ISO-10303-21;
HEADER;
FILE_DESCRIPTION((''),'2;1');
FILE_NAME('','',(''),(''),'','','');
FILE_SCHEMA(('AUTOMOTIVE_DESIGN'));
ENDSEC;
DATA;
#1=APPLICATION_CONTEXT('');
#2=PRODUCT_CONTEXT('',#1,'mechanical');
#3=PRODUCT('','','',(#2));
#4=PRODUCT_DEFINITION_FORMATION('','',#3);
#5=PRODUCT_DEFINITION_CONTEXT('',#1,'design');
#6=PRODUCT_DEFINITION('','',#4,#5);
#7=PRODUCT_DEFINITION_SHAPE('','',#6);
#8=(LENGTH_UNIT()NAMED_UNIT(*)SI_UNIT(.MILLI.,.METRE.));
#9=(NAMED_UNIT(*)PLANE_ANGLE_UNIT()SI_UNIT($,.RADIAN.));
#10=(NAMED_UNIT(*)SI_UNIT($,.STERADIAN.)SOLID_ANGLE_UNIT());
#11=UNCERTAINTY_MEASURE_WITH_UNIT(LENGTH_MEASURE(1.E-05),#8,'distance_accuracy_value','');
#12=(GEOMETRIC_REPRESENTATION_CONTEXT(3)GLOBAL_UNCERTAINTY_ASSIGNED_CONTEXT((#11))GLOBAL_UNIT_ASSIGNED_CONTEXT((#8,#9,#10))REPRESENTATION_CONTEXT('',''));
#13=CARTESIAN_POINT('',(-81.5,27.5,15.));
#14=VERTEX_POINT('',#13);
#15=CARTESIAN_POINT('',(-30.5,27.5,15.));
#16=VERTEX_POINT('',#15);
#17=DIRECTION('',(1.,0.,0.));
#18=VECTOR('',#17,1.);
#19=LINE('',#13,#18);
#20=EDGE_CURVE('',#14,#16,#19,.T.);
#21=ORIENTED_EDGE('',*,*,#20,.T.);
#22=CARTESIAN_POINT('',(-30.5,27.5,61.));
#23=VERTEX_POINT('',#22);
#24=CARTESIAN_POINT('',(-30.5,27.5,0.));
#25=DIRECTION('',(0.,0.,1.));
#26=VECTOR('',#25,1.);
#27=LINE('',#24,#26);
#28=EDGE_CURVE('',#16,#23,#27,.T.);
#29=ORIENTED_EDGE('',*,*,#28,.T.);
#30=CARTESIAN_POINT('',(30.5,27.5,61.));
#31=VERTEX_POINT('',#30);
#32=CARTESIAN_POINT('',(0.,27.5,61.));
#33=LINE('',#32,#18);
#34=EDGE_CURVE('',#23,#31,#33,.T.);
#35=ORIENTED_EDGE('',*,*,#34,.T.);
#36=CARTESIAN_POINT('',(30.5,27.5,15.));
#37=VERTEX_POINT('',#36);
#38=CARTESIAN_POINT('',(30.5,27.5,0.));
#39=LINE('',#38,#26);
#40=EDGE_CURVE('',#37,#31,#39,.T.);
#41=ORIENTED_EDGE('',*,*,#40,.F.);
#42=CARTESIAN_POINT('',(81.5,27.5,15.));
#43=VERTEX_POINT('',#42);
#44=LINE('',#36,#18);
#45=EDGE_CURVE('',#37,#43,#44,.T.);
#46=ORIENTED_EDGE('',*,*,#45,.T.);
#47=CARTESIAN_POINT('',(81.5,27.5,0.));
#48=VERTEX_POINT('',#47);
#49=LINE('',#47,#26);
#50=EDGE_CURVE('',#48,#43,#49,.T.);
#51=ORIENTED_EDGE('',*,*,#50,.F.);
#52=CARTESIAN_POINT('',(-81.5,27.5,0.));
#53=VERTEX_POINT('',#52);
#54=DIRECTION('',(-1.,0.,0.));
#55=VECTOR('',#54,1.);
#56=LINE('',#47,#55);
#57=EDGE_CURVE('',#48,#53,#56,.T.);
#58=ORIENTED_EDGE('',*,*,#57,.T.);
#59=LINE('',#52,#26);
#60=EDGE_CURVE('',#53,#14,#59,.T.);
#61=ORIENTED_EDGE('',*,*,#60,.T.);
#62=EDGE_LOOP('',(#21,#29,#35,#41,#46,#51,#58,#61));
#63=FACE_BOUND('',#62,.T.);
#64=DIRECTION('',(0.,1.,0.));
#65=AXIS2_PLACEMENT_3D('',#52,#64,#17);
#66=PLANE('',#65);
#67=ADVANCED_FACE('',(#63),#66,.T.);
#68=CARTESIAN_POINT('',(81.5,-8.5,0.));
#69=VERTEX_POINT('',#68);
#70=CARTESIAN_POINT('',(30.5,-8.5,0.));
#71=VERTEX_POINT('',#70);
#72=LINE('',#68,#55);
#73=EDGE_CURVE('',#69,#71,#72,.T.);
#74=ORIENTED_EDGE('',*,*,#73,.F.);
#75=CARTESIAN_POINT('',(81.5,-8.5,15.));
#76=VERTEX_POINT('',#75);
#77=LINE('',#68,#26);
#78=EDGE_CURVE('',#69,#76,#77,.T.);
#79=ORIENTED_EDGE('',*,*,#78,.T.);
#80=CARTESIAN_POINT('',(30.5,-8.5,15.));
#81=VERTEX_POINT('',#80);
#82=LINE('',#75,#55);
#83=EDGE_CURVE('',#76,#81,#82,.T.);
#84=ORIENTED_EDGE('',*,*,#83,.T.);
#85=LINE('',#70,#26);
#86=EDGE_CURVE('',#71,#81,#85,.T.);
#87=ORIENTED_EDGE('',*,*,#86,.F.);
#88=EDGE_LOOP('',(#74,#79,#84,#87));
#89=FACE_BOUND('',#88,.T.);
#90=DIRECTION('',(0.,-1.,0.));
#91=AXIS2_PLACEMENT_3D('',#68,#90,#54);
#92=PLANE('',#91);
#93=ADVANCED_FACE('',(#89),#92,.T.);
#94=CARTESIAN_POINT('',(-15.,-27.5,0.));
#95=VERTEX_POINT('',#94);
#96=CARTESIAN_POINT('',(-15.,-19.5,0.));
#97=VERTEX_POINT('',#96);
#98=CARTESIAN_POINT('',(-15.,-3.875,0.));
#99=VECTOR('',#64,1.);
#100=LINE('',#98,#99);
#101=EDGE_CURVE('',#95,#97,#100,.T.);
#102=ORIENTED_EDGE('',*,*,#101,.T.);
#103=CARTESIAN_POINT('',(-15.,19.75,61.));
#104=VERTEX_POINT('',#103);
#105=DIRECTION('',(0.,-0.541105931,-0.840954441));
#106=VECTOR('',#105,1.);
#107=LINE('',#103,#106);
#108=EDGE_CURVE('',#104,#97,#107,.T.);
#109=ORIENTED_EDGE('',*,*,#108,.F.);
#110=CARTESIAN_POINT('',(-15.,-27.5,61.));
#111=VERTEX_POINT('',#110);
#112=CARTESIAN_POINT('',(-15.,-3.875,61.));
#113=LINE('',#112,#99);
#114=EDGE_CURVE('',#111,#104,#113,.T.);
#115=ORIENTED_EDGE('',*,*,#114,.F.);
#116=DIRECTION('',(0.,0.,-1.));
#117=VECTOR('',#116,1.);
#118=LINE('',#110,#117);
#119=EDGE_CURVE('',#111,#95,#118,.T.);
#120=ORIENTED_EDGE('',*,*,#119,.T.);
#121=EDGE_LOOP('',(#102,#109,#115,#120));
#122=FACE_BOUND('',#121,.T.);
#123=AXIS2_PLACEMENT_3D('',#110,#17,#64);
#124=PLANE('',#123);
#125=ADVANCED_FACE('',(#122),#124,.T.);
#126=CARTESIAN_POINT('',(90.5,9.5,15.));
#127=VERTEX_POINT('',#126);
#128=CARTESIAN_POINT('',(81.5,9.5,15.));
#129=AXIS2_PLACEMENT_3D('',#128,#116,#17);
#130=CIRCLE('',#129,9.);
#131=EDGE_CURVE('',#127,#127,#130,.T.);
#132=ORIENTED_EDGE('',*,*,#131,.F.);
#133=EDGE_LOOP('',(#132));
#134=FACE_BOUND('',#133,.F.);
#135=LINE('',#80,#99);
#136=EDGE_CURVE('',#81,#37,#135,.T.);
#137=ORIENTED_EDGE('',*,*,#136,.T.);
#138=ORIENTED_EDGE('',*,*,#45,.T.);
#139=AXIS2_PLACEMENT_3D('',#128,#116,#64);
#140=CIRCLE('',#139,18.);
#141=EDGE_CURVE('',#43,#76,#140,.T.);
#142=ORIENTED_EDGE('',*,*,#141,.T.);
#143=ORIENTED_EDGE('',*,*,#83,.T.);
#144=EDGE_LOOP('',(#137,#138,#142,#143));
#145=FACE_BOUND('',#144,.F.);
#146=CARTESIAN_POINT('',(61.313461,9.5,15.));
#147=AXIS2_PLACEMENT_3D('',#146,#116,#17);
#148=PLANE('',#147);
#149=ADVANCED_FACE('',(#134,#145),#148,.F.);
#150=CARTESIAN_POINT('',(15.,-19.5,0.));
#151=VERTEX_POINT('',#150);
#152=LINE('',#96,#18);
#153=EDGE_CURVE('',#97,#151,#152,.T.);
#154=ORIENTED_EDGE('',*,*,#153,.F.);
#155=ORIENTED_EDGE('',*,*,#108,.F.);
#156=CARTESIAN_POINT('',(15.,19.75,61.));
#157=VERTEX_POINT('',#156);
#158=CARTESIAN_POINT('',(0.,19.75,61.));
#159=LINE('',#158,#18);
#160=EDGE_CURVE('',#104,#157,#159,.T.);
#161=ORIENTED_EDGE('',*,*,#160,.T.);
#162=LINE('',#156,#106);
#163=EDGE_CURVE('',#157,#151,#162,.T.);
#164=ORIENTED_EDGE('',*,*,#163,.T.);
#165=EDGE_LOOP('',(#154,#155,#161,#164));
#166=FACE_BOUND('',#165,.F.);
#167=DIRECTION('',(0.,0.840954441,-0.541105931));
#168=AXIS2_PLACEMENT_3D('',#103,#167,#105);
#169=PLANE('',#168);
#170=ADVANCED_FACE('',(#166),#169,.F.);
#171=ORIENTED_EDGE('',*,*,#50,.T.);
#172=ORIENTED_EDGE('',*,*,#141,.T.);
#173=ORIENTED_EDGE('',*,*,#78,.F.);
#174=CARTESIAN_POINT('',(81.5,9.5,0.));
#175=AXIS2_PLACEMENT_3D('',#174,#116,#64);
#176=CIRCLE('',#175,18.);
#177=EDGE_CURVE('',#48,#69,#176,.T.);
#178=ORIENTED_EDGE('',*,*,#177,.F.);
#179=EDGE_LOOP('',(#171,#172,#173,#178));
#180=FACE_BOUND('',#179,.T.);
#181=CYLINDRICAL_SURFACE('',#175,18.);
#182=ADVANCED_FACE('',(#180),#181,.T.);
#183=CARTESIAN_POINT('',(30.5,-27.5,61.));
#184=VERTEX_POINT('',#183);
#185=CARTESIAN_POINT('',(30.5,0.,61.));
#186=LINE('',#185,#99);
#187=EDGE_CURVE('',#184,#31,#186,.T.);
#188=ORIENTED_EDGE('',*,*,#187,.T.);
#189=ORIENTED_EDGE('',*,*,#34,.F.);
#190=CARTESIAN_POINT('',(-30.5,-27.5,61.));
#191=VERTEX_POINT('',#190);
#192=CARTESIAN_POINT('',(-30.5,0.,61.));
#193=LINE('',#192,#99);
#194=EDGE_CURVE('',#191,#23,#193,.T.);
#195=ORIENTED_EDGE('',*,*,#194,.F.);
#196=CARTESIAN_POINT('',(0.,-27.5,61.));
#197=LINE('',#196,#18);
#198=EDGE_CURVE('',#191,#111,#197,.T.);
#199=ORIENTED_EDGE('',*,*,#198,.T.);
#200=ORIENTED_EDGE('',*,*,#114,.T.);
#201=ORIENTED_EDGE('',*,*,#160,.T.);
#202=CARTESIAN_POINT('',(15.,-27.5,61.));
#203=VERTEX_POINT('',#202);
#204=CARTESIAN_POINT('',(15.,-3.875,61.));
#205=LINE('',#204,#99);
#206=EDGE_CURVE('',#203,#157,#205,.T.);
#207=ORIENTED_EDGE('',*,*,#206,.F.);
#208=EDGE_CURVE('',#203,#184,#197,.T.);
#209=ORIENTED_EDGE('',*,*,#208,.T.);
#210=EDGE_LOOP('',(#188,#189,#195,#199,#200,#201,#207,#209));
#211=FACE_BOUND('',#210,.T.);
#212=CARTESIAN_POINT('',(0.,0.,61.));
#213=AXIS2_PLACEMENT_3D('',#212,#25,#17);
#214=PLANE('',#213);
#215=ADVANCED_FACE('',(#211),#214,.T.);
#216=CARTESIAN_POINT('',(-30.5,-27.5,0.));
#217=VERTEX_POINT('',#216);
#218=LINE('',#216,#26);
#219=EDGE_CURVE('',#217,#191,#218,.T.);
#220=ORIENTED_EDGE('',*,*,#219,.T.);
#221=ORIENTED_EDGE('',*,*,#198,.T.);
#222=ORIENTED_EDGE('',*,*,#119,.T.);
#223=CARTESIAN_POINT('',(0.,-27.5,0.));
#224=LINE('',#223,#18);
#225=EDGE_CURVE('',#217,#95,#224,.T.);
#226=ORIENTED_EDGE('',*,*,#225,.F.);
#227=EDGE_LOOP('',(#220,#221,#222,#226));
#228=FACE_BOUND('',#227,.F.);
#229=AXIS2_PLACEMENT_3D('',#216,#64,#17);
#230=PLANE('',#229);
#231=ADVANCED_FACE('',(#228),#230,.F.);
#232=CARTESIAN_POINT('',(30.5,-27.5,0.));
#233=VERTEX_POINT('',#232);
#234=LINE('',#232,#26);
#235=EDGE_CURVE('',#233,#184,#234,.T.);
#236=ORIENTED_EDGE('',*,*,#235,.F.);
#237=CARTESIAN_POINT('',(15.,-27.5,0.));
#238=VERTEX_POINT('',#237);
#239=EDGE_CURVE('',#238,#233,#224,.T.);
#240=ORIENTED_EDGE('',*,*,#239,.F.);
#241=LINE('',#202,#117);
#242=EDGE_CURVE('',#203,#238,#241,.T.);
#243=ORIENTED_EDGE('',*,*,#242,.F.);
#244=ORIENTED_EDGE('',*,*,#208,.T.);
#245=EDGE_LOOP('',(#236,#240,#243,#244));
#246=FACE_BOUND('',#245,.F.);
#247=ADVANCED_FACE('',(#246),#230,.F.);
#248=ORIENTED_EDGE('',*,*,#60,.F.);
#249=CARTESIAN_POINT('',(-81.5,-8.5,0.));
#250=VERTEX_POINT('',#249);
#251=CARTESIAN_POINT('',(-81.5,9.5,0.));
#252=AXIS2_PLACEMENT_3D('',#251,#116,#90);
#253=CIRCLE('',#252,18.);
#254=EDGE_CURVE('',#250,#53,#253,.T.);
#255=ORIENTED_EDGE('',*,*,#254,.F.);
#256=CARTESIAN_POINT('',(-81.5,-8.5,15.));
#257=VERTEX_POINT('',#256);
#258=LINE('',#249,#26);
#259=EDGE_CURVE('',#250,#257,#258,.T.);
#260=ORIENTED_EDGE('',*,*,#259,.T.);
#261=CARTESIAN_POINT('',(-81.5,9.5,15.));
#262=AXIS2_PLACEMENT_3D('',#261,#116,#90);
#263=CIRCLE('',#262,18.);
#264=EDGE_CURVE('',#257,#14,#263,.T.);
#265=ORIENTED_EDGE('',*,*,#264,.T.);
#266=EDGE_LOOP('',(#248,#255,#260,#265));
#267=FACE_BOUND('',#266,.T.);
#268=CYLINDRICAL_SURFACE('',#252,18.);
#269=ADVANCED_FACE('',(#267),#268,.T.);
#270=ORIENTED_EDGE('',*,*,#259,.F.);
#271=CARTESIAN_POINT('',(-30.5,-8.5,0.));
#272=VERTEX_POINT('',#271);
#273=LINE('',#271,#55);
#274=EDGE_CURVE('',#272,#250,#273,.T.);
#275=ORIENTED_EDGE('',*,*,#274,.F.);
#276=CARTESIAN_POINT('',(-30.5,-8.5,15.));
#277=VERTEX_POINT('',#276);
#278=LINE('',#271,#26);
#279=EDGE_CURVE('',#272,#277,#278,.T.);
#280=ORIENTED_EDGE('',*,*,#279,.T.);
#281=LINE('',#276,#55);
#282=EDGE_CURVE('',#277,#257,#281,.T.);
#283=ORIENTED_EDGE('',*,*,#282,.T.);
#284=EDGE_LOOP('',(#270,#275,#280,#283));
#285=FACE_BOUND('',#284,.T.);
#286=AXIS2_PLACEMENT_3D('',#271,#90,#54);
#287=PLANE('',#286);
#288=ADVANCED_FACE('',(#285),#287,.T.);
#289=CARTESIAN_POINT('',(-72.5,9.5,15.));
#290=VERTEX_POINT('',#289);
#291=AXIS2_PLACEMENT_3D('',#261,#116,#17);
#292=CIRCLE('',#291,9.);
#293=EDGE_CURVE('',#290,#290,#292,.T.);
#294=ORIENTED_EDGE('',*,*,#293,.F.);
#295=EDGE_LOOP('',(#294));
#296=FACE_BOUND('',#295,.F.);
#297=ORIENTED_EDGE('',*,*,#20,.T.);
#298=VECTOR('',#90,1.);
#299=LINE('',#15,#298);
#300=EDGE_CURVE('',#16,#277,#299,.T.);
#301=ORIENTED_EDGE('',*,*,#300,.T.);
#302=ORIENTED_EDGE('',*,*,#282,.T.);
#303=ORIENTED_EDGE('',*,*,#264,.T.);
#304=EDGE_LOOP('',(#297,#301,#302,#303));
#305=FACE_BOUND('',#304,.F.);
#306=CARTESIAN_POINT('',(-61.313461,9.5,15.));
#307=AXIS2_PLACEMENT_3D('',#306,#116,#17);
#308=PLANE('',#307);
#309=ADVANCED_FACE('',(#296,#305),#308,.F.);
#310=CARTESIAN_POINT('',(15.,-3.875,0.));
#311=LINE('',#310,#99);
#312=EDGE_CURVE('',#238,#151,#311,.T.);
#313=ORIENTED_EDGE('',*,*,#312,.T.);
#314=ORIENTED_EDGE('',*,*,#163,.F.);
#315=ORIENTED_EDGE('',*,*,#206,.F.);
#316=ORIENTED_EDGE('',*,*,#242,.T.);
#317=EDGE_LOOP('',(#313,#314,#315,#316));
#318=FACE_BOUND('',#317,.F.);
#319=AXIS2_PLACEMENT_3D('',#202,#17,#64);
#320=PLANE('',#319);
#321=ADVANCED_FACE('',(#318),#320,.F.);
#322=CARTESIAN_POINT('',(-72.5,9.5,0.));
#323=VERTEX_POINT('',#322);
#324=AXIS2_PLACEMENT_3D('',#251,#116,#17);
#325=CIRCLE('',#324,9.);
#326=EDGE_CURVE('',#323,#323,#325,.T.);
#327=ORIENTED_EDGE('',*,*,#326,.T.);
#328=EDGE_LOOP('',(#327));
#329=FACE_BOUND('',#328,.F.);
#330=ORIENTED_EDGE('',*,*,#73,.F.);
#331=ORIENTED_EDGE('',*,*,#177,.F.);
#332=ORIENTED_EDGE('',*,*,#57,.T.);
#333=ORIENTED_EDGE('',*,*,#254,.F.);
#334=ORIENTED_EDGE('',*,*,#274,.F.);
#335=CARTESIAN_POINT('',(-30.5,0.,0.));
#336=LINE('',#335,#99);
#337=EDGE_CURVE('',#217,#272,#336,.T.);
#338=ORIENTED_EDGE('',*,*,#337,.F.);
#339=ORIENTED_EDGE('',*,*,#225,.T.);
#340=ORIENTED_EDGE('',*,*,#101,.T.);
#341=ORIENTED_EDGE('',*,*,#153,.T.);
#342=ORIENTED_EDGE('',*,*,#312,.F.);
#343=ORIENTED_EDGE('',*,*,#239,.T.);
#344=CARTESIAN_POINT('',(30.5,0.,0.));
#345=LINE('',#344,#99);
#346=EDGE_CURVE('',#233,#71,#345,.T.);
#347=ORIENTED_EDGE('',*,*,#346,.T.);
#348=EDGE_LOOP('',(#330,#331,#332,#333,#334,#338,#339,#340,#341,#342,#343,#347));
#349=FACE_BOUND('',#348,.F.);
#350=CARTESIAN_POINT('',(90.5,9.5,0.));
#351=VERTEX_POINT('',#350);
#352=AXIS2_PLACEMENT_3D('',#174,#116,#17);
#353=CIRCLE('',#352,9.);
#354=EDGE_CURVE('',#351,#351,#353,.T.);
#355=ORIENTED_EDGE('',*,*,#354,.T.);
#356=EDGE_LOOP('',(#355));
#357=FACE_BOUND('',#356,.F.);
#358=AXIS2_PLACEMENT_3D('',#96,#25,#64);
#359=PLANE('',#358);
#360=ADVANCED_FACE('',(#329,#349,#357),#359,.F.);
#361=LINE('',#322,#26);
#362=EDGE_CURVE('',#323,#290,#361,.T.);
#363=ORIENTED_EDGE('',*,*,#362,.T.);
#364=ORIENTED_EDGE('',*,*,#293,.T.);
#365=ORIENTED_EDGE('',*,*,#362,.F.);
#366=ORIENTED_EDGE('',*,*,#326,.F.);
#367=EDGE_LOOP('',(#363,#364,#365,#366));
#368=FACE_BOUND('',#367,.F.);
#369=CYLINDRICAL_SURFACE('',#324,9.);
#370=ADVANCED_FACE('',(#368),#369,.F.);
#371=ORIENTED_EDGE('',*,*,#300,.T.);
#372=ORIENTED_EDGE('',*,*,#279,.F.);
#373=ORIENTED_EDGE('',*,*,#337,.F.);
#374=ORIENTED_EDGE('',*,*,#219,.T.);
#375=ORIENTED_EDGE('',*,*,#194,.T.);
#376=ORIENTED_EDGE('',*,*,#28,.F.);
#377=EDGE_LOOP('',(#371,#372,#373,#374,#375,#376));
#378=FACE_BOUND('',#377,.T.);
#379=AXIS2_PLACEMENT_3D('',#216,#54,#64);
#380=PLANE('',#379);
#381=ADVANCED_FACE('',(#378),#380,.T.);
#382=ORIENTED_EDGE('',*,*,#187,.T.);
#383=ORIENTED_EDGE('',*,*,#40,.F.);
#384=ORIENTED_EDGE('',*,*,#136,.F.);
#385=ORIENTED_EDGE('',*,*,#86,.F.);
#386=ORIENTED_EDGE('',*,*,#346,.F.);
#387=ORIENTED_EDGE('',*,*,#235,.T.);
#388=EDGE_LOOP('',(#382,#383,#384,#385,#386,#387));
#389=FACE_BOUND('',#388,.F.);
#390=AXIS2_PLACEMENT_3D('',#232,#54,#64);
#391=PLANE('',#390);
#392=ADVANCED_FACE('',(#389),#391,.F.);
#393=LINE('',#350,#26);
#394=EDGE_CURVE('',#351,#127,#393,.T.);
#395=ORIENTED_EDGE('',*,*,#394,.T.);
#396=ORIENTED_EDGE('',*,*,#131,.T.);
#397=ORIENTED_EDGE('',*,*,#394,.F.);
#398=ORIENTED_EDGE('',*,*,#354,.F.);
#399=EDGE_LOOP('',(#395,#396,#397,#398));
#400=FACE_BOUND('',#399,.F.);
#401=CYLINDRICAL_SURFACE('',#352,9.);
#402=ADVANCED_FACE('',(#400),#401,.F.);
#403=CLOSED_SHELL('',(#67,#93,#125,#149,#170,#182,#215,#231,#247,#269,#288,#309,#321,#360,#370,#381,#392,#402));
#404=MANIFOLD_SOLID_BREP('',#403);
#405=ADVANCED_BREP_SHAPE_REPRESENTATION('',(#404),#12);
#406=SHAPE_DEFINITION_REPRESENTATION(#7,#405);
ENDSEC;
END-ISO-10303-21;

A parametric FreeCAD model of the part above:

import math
import FreeCAD as App
import Part
import Sketcher
from FreeCAD import Vector

doc = App.newDocument("Part")
body = doc.addObject("PartDesign::Body", "Body")

sketch1 = body.newObject("Sketcher::SketchObject", "Sketch")
sketch1.AttachmentSupport = (doc.getObject("XY_Plane"), [""])
sketch1.MapMode = "FlatFace"
sketch1.addGeometry(Part.LineSegment(Vector(-30, 28, 0), Vector(-30, -28, 0)), False)
sketch1.addGeometry(Part.LineSegment(Vector(-30, -28, 0), Vector(30, -28, 0)), False)
sketch1.addGeometry(Part.LineSegment(Vector(30, -28, 0), Vector(30, 28, 0)), False)
sketch1.addGeometry(Part.LineSegment(Vector(30, 28, 0), Vector(-30, 28, 0)), False)
sketch1.addConstraint(Sketcher.Constraint("Coincident", 0, 2, 1, 1))
sketch1.addConstraint(Sketcher.Constraint("Coincident", 1, 2, 2, 1))
sketch1.addConstraint(Sketcher.Constraint("Coincident", 2, 2, 3, 1))
sketch1.addConstraint(Sketcher.Constraint("Coincident", 3, 2, 0, 1))
sketch1.addConstraint(Sketcher.Constraint("Vertical", 0))
sketch1.addConstraint(Sketcher.Constraint("Horizontal", 1))
sketch1.addConstraint(Sketcher.Constraint("Vertical", 2))
sketch1.addConstraint(Sketcher.Constraint("Horizontal", 3))
sketch1.addConstraint(Sketcher.Constraint("Symmetric", 0, 2, 2, 2, -1, 1))
sketch1.addConstraint(Sketcher.Constraint("DistanceX", 1, 1, 1, 2, 61.0))
sketch1.addConstraint(Sketcher.Constraint("DistanceY", 0, 2, 0, 1, 55.0))
pad1 = body.newObject("PartDesign::Pad", "Pad")
pad1.Profile = sketch1
pad1.Length = 61

sketch2 = body.newObject("Sketcher::SketchObject", "Sketch001")
sketch2.AttachmentSupport = (doc.getObject("XY_Plane"), [""])
sketch2.MapMode = "FlatFace"
sketch2.AttachmentOffset = App.Placement(Vector(0, 0, 61), App.Rotation())
sketch2.addGeometry(Part.LineSegment(Vector(-15, 20, 0), Vector(-15, -28, 0)), False)
sketch2.addGeometry(Part.LineSegment(Vector(-15, -28, 0), Vector(15, -28, 0)), False)
sketch2.addGeometry(Part.LineSegment(Vector(15, -28, 0), Vector(15, 20, 0)), False)
sketch2.addGeometry(Part.LineSegment(Vector(15, 20, 0), Vector(-15, 20, 0)), False)
sketch2.addConstraint(Sketcher.Constraint("Coincident", 0, 2, 1, 1))
sketch2.addConstraint(Sketcher.Constraint("Coincident", 1, 2, 2, 1))
sketch2.addConstraint(Sketcher.Constraint("Coincident", 2, 2, 3, 1))
sketch2.addConstraint(Sketcher.Constraint("Coincident", 3, 2, 0, 1))
sketch2.addConstraint(Sketcher.Constraint("Vertical", 0))
sketch2.addConstraint(Sketcher.Constraint("Horizontal", 1))
sketch2.addConstraint(Sketcher.Constraint("Vertical", 2))
sketch2.addConstraint(Sketcher.Constraint("Horizontal", 3))
sketch2.addConstraint(Sketcher.Constraint("DistanceX", 1, 1, 1, 2, 30.0))
sketch2.addConstraint(Sketcher.Constraint("DistanceX", 0, 2, -1, 1, 15.0))
sketch2.addConstraint(Sketcher.Constraint("DistanceY", 0, 2, 0, 1, 47.25))
sketch2.addConstraint(Sketcher.Constraint("DistanceY", 0, 2, -1, 1, 27.5))
pocket1 = body.newObject("PartDesign::Pocket", "Pocket")
pocket1.Profile = sketch2
pocket1.Length = 61

sketch3 = body.newObject("Sketcher::SketchObject", "Sketch002")
sketch3.AttachmentSupport = (doc.getObject("XY_Plane"), [""])
sketch3.MapMode = "FlatFace"
sketch3.addGeometry(Part.LineSegment(Vector(-82, 28, 0), Vector(-30, 28, 0)), False)
sketch3.addGeometry(Part.LineSegment(Vector(-30, 28, 0), Vector(-30, -8, 0)), False)
sketch3.addGeometry(Part.LineSegment(Vector(-30, -8, 0), Vector(-82, -8, 0)), False)
sketch3.addGeometry(Part.ArcOfCircle(Part.Circle(Vector(-82, 10, 0), Vector(0, 0, 1), 18), math.radians(90), math.radians(270)), False)
sketch3.addGeometry(Part.Circle(Vector(-82, 10, 0), Vector(0, 0, 1), 9), False)
sketch3.addGeometry(Part.LineSegment(Vector(30, -8, 0), Vector(30, 28, 0)), False)
sketch3.addGeometry(Part.LineSegment(Vector(30, 28, 0), Vector(82, 28, 0)), False)
sketch3.addGeometry(Part.ArcOfCircle(Part.Circle(Vector(82, 10, 0), Vector(0, 0, 1), 18), math.radians(-90), math.radians(90)), False)
sketch3.addGeometry(Part.LineSegment(Vector(82, -8, 0), Vector(30, -8, 0)), False)
sketch3.addGeometry(Part.Circle(Vector(82, 10, 0), Vector(0, 0, 1), 9), False)
sketch3.addConstraint(Sketcher.Constraint("Coincident", 0, 2, 1, 1))
sketch3.addConstraint(Sketcher.Constraint("Coincident", 1, 2, 2, 1))
sketch3.addConstraint(Sketcher.Constraint("Tangent", 2, 2, 3, 2))
sketch3.addConstraint(Sketcher.Constraint("Tangent", 3, 1, 0, 1))
sketch3.addConstraint(Sketcher.Constraint("Coincident", 5, 2, 6, 1))
sketch3.addConstraint(Sketcher.Constraint("Tangent", 6, 2, 7, 2))
sketch3.addConstraint(Sketcher.Constraint("Tangent", 7, 1, 8, 1))
sketch3.addConstraint(Sketcher.Constraint("Coincident", 8, 2, 5, 1))
sketch3.addConstraint(Sketcher.Constraint("Horizontal", 0))
sketch3.addConstraint(Sketcher.Constraint("Vertical", 1))
sketch3.addConstraint(Sketcher.Constraint("Horizontal", 2))
sketch3.addConstraint(Sketcher.Constraint("Vertical", 5))
sketch3.addConstraint(Sketcher.Constraint("Horizontal", 6))
sketch3.addConstraint(Sketcher.Constraint("Horizontal", 8))
sketch3.addConstraint(Sketcher.Constraint("Coincident", 4, 3, 3, 3))
sketch3.addConstraint(Sketcher.Constraint("Coincident", 9, 3, 7, 3))
sketch3.addConstraint(Sketcher.Constraint("Equal", 3, 7))
sketch3.addConstraint(Sketcher.Constraint("Equal", 4, 9))
sketch3.addConstraint(Sketcher.Constraint("Symmetric", 3, 3, 7, 3, -2))
sketch3.addConstraint(Sketcher.Constraint("Equal", 2, 6))
sketch3.addConstraint(Sketcher.Constraint("Diameter", 4, 18.0))
sketch3.addConstraint(Sketcher.Constraint("Radius", 3, 18.0))
sketch3.addConstraint(Sketcher.Constraint("DistanceX", 0, 1, 0, 2, 51.0))
sketch3.addConstraint(Sketcher.Constraint("DistanceX", 3, 3, 7, 3, 163.0))
sketch3.addConstraint(Sketcher.Constraint("DistanceY", -1, 1, 3, 3, 9.5))
pad2 = body.newObject("PartDesign::Pad", "Pad001")
pad2.Profile = sketch3
pad2.Length = 15

sketch4 = body.newObject("Sketcher::SketchObject", "Sketch003")
sketch4.AttachmentSupport = (doc.getObject("YZ_Plane"), [""])
sketch4.MapMode = "FlatFace"
sketch4.AttachmentOffset = App.Placement(Vector(0, 0, -15), App.Rotation())
sketch4.addGeometry(Part.LineSegment(Vector(20, 0, 0), Vector(20, 61, 0)), False)
sketch4.addGeometry(Part.LineSegment(Vector(20, 61, 0), Vector(-20, 0, 0)), False)
sketch4.addGeometry(Part.LineSegment(Vector(-20, 0, 0), Vector(20, 0, 0)), False)
sketch4.addConstraint(Sketcher.Constraint("Coincident", 0, 2, 1, 1))
sketch4.addConstraint(Sketcher.Constraint("Coincident", 1, 2, 2, 1))
sketch4.addConstraint(Sketcher.Constraint("Coincident", 2, 2, 0, 1))
sketch4.addConstraint(Sketcher.Constraint("Vertical", 0))
sketch4.addConstraint(Sketcher.Constraint("Horizontal", 2))
sketch4.addConstraint(Sketcher.Constraint("PointOnObject", 1, 2, -1))
sketch4.addConstraint(Sketcher.Constraint("DistanceY", 0, 1, 0, 2, 61.0))
sketch4.addConstraint(Sketcher.Constraint("DistanceX", 2, 1, 2, 2, 39.25))
sketch4.addConstraint(Sketcher.Constraint("DistanceX", 1, 2, -1, 1, 19.5))
pad3 = body.newObject("PartDesign::Pad", "Pad002")
pad3.Profile = sketch4
pad3.Length = 30

doc.recompute()
